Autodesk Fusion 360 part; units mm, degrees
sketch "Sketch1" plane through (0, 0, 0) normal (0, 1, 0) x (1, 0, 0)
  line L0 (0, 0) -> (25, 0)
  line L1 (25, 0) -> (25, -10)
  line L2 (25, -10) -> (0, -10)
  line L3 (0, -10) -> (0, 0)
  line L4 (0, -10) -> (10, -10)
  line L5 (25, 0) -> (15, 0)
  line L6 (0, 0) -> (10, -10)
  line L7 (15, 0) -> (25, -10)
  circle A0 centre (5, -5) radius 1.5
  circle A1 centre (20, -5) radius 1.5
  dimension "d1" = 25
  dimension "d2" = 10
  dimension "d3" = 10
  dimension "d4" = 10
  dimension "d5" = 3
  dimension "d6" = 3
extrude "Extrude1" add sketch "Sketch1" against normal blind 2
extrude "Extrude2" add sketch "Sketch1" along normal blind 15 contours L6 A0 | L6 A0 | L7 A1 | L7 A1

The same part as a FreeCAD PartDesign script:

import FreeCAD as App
import Part
import Sketcher

V = App.Vector


def add_polygon(sketch, points):
    """Adds a closed chain of lines whose ends are joined by coincident constraints."""
    first, n = sketch.GeometryCount, len(points)
    for a, b in zip(points, points[1:] + points[:1]):
        sketch.addGeometry(Part.LineSegment(App.Vector(*a, 0), App.Vector(*b, 0)), False)
    for i in range(n):
        sketch.addConstraint(Sketcher.Constraint("Coincident", first + i, 2, first + (i + 1) % n, 1))

doc = App.newDocument("Part")
body = doc.addObject("PartDesign::Body", "Body")

sketch1 = body.newObject("Sketcher::SketchObject", "Sketch")
sketch1.AttachmentSupport = (doc.getObject("XZ_Plane"), [""])
sketch1.MapMode = "FlatFace"
add_polygon(sketch1, [(0, 10), (25, 10), (25, 0), (0, 0)])
sketch1.addConstraint(Sketcher.Constraint("Horizontal", 0))
sketch1.addConstraint(Sketcher.Constraint("Vertical", 1))
sketch1.addConstraint(Sketcher.Constraint("Horizontal", 2))
sketch1.addConstraint(Sketcher.Constraint("Vertical", 3))
sketch1.addConstraint(Sketcher.Constraint("Coincident", 2, 2, -1, 1))
sketch1.addConstraint(Sketcher.Constraint("DistanceX", 0, 1, 0, 2, 25.0))
sketch1.addConstraint(Sketcher.Constraint("DistanceY", 1, 2, 1, 1, 10.0))
pad1 = body.newObject("PartDesign::Pad", "Pad")
pad1.Profile = sketch1
pad1.Length = 2

sketch2 = body.newObject("Sketcher::SketchObject", "Sketch001")
sketch2.AttachmentSupport = (doc.getObject("XZ_Plane"), [""])
sketch2.MapMode = "FlatFace"
sketch2.addGeometry(Part.Circle(V(5, 5, 0), V(0, 0, 1), 1.5), False)
sketch2.addGeometry(Part.Circle(V(20, 5, 0), V(0, 0, 1), 1.5), False)
sketch2.addConstraint(Sketcher.Constraint("Equal", 0, 1))
sketch2.addConstraint(Sketcher.Constraint("Horizontal", 0, 3, 1, 3))
sketch2.addConstraint(Sketcher.Constraint("Diameter", 0, 3.0))
sketch2.addConstraint(Sketcher.Constraint("DistanceX", -1, 1, 0, 3, 5.0))
sketch2.addConstraint(Sketcher.Constraint("DistanceY", -1, 1, 0, 3, 5.0))
sketch2.addConstraint(Sketcher.Constraint("DistanceX", -1, 1, 1, 3, 20.0))
pad2 = body.newObject("PartDesign::Pad", "Pad001")
pad2.Profile = sketch2
pad2.Length = 15
pad2.Reversed = True

doc.recompute()
